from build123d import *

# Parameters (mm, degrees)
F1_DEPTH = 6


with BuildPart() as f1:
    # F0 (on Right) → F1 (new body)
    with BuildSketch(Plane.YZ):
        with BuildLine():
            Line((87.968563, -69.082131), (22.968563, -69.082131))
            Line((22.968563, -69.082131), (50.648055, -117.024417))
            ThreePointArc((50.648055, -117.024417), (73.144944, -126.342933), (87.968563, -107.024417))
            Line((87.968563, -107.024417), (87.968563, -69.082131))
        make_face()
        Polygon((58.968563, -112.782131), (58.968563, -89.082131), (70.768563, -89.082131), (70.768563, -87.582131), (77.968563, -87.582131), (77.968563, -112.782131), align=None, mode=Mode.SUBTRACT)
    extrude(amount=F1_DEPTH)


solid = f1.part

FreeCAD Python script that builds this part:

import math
import FreeCAD as App
import Part
import Sketcher
from FreeCAD import Vector
Q = App.Units.Quantity


def add_polygon(sketch, points):
    """Adds a closed chain of lines whose ends are joined by coincident constraints."""
    first, n = sketch.GeometryCount, len(points)
    for a, b in zip(points, points[1:] + points[:1]):
        sketch.addGeometry(Part.LineSegment(App.Vector(*a, 0), App.Vector(*b, 0)), False)
    for i in range(n):
        sketch.addConstraint(Sketcher.Constraint("Coincident", first + i, 2, first + (i + 1) % n, 1))

doc = App.newDocument("Part")
body = doc.addObject("PartDesign::Body", "Body")

# Sketch on YZ plane
sketch1 = body.newObject("Sketcher::SketchObject", "Sketch")
sketch1.AttachmentSupport = (doc.getObject("YZ_Plane"), [""])
sketch1.MapMode = "FlatFace"
sketch1.addGeometry(Part.LineSegment(Vector(88, -69.1, 0), Vector(23, -69.1, 0)), False)  # 0
sketch1.addGeometry(Part.LineSegment(Vector(23, -69.1, 0), Vector(50.6, -117, 0)), False)  # 1
sketch1.addGeometry(Part.ArcOfCircle(Part.Circle(Vector(68, -107, 0), Vector(0, 0, 1), 20), math.radians(-150), math.radians(0)), False)  # 2
sketch1.addGeometry(Part.LineSegment(Vector(88, -107, 0), Vector(88, -69.1, 0)), False)  # 3
add_polygon(sketch1, [(78, -112.8), (59, -112.8), (59, -89.1), (70.8, -89.1), (70.8, -87.6), (78, -87.6)])  # lines 4-9
sketch1.addConstraint([
    Sketcher.Constraint("Coincident", 0, 2, 1, 1),
    Sketcher.Constraint("Tangent", 1, 2, 2, 1),
    Sketcher.Constraint("Tangent", 2, 2, 3, 1),
    Sketcher.Constraint("Coincident", 3, 2, 0, 1),
    Sketcher.Constraint("Horizontal", 0),
    Sketcher.Constraint("Vertical", 3),
    Sketcher.Constraint("Horizontal", 4),
    Sketcher.Constraint("Vertical", 5),
    Sketcher.Constraint("Horizontal", 6),
    Sketcher.Constraint("Vertical", 7),
    Sketcher.Constraint("Horizontal", 8),
    Sketcher.Constraint("Vertical", 9),
    Sketcher.Constraint("Radius", 2, 20.0),
    Sketcher.Constraint("DistanceX", 0, 2, 0, 1, 65.0),
    Sketcher.Constraint("DistanceX", 4, 2, 4, 1, 19.0),
    Sketcher.Constraint("Angle", 1, Q("-60 deg")),
    Sketcher.Constraint("DistanceX", 6, 1, 6, 2, 11.8),
    Sketcher.Constraint("DistanceY", 5, 1, 5, 2, 23.7),
    Sketcher.Constraint("DistanceY", 7, 1, 7, 2, 1.5),
    Sketcher.Constraint("DistanceX", 4, 2, 2, 3, 9.0),
    Sketcher.Constraint("DistanceY", 5, 2, 3, 2, 20.0),
    Sketcher.Constraint("DistanceY", 0, 2, -1, 1, 69.082131),
    Sketcher.Constraint("DistanceX", -1, 1, 2, 3, 67.968563),
])
pad1 = body.newObject("PartDesign::Pad", "Pad")
pad1.Profile = sketch1
pad1.Length = 6

doc.recompute()
